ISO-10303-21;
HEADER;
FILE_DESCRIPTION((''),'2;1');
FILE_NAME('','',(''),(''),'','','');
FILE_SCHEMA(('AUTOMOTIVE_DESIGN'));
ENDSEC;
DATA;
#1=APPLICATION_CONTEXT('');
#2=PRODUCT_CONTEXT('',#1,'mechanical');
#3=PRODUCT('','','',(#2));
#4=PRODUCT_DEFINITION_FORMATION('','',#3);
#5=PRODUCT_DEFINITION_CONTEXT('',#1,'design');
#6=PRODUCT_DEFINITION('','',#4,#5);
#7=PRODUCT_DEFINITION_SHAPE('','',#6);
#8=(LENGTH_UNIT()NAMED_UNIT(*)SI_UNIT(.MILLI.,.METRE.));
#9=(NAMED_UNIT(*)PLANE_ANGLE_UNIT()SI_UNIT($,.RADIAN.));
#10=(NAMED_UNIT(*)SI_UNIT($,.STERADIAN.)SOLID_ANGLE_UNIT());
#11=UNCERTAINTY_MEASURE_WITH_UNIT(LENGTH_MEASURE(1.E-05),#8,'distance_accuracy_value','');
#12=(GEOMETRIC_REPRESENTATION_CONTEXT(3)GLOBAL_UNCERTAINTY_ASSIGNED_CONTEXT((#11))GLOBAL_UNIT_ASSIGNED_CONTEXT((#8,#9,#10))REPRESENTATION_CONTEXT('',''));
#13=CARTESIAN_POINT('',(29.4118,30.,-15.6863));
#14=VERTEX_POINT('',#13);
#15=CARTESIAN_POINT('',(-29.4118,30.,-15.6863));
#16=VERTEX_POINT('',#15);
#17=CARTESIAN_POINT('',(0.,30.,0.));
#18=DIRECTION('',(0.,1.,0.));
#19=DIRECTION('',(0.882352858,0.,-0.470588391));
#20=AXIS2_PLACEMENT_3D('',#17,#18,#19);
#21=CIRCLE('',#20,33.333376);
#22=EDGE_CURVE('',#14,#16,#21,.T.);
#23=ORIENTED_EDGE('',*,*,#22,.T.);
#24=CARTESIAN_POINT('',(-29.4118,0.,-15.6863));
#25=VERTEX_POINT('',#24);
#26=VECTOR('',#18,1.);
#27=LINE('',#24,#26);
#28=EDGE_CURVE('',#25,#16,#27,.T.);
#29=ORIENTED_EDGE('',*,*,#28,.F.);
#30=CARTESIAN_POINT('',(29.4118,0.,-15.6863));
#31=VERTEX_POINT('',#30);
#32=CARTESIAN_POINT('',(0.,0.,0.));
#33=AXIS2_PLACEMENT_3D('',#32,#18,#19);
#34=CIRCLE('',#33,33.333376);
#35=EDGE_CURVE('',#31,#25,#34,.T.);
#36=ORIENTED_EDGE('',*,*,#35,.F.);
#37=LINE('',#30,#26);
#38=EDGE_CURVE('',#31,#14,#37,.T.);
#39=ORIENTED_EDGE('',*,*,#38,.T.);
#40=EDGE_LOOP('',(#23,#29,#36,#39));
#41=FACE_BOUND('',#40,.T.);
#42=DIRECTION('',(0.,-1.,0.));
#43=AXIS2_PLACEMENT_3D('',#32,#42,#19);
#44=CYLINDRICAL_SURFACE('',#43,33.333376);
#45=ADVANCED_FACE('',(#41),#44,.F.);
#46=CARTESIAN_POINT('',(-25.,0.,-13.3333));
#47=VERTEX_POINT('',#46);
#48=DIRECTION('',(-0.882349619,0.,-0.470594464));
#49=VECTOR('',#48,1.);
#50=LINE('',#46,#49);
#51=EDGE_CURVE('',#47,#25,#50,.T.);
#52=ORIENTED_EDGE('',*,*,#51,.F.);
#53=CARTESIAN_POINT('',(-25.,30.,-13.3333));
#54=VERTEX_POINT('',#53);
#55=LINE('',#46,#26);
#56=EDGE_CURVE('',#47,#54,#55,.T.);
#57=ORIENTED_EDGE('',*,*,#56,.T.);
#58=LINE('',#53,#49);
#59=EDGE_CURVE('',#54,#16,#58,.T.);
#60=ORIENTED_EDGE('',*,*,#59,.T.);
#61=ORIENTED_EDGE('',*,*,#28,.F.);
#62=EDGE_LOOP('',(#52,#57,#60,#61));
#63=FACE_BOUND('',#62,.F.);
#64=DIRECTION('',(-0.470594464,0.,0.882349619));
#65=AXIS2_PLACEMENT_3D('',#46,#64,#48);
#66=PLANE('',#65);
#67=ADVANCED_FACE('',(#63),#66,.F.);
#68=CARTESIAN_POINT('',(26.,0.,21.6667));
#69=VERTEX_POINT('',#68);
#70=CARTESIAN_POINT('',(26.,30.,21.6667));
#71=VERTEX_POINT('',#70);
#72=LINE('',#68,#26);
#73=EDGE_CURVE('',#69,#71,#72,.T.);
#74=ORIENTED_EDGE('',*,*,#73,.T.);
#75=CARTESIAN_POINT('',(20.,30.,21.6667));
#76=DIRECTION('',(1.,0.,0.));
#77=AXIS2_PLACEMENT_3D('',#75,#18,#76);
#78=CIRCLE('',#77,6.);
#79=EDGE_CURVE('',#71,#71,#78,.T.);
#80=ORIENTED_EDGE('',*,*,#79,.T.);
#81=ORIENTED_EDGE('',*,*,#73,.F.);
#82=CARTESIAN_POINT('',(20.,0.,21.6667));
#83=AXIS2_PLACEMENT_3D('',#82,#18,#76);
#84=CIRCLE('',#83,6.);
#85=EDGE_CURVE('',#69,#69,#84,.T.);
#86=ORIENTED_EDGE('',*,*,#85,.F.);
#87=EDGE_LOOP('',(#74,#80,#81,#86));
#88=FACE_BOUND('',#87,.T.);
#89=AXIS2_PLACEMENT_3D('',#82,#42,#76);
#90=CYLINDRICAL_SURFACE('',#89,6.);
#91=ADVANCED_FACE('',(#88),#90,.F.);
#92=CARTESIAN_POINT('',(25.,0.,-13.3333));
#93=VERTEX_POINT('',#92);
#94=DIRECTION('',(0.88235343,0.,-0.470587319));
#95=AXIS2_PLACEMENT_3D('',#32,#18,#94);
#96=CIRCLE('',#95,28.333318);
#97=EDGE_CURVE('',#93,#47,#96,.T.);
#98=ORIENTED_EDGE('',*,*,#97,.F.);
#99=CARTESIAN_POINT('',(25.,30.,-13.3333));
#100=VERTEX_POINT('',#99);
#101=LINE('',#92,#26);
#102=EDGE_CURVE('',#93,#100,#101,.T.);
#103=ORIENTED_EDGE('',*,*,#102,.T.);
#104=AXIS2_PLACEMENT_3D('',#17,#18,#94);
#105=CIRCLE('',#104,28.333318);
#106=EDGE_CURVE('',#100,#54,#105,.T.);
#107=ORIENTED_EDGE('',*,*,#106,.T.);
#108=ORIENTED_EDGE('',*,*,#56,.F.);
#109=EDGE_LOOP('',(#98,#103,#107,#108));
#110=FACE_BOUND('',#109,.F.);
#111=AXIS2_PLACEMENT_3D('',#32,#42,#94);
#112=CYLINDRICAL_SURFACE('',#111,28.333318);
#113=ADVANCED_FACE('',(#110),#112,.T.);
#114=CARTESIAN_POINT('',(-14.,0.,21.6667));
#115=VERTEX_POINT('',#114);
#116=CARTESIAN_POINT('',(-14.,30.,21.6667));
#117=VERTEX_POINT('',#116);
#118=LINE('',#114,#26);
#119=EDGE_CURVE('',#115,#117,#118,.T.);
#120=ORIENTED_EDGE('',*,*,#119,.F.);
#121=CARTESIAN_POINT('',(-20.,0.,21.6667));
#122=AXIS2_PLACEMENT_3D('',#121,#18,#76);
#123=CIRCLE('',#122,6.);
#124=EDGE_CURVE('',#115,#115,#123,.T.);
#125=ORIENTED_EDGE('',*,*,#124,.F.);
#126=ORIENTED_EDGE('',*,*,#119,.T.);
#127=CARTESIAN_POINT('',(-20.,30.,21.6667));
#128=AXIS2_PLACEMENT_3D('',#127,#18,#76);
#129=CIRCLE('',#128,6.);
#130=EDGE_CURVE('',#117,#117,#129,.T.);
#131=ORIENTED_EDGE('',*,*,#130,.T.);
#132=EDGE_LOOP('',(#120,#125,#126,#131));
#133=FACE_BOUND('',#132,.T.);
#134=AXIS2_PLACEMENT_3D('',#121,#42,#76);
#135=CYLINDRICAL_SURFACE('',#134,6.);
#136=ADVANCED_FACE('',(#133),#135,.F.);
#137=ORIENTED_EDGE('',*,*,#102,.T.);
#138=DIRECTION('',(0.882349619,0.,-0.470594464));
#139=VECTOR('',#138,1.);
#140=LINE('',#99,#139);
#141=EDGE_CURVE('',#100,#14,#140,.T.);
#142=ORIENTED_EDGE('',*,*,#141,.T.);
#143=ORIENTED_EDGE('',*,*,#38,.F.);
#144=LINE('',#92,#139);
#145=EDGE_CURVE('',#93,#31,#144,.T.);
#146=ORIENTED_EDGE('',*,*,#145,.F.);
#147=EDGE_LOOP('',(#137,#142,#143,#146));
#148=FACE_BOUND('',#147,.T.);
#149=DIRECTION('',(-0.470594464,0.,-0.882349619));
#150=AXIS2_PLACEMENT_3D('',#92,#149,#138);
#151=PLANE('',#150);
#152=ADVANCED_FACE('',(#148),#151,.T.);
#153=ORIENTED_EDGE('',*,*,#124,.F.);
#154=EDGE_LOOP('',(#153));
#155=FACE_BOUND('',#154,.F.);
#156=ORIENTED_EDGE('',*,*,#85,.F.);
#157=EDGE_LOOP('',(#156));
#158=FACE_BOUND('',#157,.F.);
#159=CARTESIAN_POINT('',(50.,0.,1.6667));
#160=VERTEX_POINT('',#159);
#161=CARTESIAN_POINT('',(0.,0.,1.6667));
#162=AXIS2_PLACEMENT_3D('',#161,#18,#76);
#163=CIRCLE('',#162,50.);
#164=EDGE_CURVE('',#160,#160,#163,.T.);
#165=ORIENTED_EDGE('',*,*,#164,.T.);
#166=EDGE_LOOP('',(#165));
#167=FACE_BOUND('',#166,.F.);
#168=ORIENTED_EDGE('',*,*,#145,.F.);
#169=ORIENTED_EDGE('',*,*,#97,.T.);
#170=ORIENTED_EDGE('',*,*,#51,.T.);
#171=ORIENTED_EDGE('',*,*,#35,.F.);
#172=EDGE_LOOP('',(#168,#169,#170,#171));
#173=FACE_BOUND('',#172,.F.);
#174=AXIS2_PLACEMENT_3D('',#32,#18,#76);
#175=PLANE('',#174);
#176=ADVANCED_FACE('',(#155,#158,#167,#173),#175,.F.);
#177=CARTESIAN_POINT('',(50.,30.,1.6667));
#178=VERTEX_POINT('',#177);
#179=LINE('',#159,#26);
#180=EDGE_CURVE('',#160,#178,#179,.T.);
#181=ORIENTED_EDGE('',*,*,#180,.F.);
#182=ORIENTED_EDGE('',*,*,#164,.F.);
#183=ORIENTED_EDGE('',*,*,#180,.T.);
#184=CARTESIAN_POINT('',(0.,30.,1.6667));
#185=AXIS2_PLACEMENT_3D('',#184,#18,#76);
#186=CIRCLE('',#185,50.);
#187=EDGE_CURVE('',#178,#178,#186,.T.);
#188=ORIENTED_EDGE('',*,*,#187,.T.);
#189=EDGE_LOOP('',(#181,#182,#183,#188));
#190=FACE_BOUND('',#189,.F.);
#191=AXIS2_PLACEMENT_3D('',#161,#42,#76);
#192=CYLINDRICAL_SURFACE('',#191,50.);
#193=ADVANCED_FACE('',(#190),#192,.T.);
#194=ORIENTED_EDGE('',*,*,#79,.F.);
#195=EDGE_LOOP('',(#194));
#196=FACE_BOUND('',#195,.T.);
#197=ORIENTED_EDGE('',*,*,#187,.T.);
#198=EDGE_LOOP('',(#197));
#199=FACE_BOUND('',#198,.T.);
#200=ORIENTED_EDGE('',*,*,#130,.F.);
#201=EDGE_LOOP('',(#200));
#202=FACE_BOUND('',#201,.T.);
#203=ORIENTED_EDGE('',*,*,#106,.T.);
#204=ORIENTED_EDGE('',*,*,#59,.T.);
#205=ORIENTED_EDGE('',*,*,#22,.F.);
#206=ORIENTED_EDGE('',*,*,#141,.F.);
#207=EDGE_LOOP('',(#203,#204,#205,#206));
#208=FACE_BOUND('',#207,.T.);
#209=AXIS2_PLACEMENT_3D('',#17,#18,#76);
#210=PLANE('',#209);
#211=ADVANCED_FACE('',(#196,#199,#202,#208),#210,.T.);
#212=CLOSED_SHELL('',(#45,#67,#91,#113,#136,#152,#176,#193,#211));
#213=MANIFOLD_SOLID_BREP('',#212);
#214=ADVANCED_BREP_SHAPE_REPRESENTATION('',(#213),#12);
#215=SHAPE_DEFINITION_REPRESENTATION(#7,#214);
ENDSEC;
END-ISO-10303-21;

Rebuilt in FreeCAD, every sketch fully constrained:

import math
import FreeCAD as App
import Part
import Sketcher

doc = App.newDocument("Part")
body = doc.addObject("PartDesign::Body", "Body")

sketch1 = doc.addObject("Sketcher::SketchObject", "Sketch")
body.addObject(sketch1)
sketch1.AttachmentSupport = (doc.XZ_Plane, [""])
sketch1.MapMode = "FlatFace"
sketch1.addGeometry([
    Part.Circle(App.Vector(0, 1.6667, 0), App.Vector(0, 0, 1), 50),
    Part.Circle(App.Vector(-20, 21.6667, 0), App.Vector(0, 0, 1), 6),
    Part.Circle(App.Vector(20, 21.6667, 0), App.Vector(0, 0, 1), 6),
    Part.ArcOfCircle(Part.Circle(App.Vector(0, 0, 0), App.Vector(0, 0, 1), 28.333318), math.radians(-151.927573), math.radians(-28.072427)),
    Part.LineSegment(App.Vector(-25, -13.3333, 0), App.Vector(-29.4118, -15.6863, 0)),
    Part.ArcOfCircle(Part.Circle(App.Vector(0, 0, 0), App.Vector(0, 0, 1), 33.333376), math.radians(-151.927503), math.radians(-28.072497)),
    Part.LineSegment(App.Vector(29.4118, -15.6863, 0), App.Vector(25, -13.3333, 0)),
], False)
sketch1.addConstraint([
    Sketcher.Constraint("Coincident", 3, 1, 4, 1),
    Sketcher.Constraint("Coincident", 4, 2, 5, 1),
    Sketcher.Constraint("Coincident", 5, 2, 6, 1),
    Sketcher.Constraint("Coincident", 6, 2, 3, 2),
    Sketcher.Constraint("Coincident", 3, 3, -1, 1),
    Sketcher.Constraint("Coincident", 5, 3, -1, 1),
    Sketcher.Constraint("Equal", 1, 2),
    Sketcher.Constraint("Symmetric", 1, 3, 2, 3, -2),
    Sketcher.Constraint("PointOnObject", 0, 3, -2),
    Sketcher.Constraint("Horizontal", 4, 2, 5, 2),
    Sketcher.Constraint("Horizontal", 3, 1, 6, 2),
    Sketcher.Constraint("Diameter", 0, 100.0),
    Sketcher.Constraint("Diameter", 1, 12.0),
    Sketcher.Constraint("Distance", 4, 5.0),
    Sketcher.Constraint("DistanceX", 3, 1, 1, 3, 5.0),
    Sketcher.Constraint("DistanceX", 1, 3, -1, 1, 20.0),
    Sketcher.Constraint("DistanceY", 0, 3, 1, 3, 20.0),
    Sketcher.Constraint("DistanceY", 3, 1, 0, 3, 15.0),
    Sketcher.Constraint("Radius", 3, 28.3333),
    Sketcher.Constraint("DistanceY", 4, 2, 3, 1, 2.353),
])
pad1 = doc.addObject("PartDesign::Pad", "Pad")
body.addObject(pad1)
pad1.Profile = sketch1
pad1.Length = 30
pad1.Reversed = True

doc.recompute()
